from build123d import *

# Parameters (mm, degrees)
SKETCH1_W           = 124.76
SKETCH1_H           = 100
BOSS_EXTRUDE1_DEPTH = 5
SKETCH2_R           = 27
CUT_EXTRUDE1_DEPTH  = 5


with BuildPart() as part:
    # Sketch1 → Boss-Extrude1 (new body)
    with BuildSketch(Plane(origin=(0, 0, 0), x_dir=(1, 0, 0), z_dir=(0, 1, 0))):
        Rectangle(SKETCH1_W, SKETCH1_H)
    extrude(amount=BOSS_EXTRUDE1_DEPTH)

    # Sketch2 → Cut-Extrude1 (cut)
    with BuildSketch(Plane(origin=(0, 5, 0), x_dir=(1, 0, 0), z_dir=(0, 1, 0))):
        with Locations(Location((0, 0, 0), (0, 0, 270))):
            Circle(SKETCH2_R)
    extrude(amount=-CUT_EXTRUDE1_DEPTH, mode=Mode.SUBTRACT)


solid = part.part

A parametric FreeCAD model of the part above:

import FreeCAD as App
import Part
import Sketcher
from FreeCAD import Vector
Q = App.Units.Quantity


def add_polygon(sketch, points):
    """Adds a closed chain of lines whose ends are joined by coincident constraints."""
    first, n = sketch.GeometryCount, len(points)
    for a, b in zip(points, points[1:] + points[:1]):
        sketch.addGeometry(Part.LineSegment(App.Vector(*a, 0), App.Vector(*b, 0)), False)
    for i in range(n):
        sketch.addConstraint(Sketcher.Constraint("Coincident", first + i, 2, first + (i + 1) % n, 1))

doc = App.newDocument("Part")
params = doc.addObject("Spreadsheet::Sheet", "Params")
for row, (alias, value) in enumerate([
    ("sketch1_height", "100 mm"),
    ("sketch1_width", "124.76 mm"),
    ("pad1_length", "5 mm"),
    ("sketch2_diameter", "54 mm"),
    ("pocket1_length", "5 mm"),
], start=1):
    params.set(f"A{row}", alias)
    params.set(f"B{row}", "=" + value)
    params.setAlias(f"B{row}", alias)

body = doc.addObject("PartDesign::Body", "Body")

sketch1 = body.newObject("Sketcher::SketchObject", "Sketch")
sketch1.AttachmentSupport = (doc.getObject("XZ_Plane"), [""])
sketch1.MapMode = "FlatFace"
add_polygon(sketch1, [(-62, -50), (-62, 50), (62, 50), (62, -50)])
sketch1.addConstraint([
    Sketcher.Constraint("Vertical", 0),
    Sketcher.Constraint("Horizontal", 1),
    Sketcher.Constraint("Vertical", 2),
    Sketcher.Constraint("Horizontal", 3),
    Sketcher.Constraint("Symmetric", 0, 2, 2, 2, -1, 1),
    Sketcher.Constraint("DistanceY", 0, 1, 0, 2, Q("100 mm")),
    Sketcher.Constraint("DistanceX", 1, 1, 1, 2, Q("124.76 mm")),
])
sketch1.setExpression("Constraints[9]", "Params.sketch1_height")
sketch1.setExpression("Constraints[10]", "Params.sketch1_width")
pad1 = body.newObject("PartDesign::Pad", "Pad")
pad1.Profile = sketch1
pad1.setExpression("Length", "Params.pad1_length")
pad1.Reversed = True

sketch2 = body.newObject("Sketcher::SketchObject", "Sketch001")
sketch2.AttachmentSupport = (doc.getObject("XZ_Plane"), [""])
sketch2.MapMode = "FlatFace"
sketch2.AttachmentOffset = App.Placement(Vector(0, 0, -5), App.Rotation())
sketch2.addGeometry(Part.Circle(Vector(0, 0, 0), Vector(0, 0, 1), 27), False)
sketch2.addConstraint([
    Sketcher.Constraint("Coincident", 0, 3, -1, 1),
    Sketcher.Constraint("Diameter", 0, Q("54 mm")),
])
sketch2.setExpression("Constraints[1]", "Params.sketch2_diameter")
pocket1 = body.newObject("PartDesign::Pocket", "Pocket")
pocket1.Profile = sketch2
pocket1.setExpression("Length", "Params.pocket1_length")
pocket1.Reversed = True

doc.recompute()
